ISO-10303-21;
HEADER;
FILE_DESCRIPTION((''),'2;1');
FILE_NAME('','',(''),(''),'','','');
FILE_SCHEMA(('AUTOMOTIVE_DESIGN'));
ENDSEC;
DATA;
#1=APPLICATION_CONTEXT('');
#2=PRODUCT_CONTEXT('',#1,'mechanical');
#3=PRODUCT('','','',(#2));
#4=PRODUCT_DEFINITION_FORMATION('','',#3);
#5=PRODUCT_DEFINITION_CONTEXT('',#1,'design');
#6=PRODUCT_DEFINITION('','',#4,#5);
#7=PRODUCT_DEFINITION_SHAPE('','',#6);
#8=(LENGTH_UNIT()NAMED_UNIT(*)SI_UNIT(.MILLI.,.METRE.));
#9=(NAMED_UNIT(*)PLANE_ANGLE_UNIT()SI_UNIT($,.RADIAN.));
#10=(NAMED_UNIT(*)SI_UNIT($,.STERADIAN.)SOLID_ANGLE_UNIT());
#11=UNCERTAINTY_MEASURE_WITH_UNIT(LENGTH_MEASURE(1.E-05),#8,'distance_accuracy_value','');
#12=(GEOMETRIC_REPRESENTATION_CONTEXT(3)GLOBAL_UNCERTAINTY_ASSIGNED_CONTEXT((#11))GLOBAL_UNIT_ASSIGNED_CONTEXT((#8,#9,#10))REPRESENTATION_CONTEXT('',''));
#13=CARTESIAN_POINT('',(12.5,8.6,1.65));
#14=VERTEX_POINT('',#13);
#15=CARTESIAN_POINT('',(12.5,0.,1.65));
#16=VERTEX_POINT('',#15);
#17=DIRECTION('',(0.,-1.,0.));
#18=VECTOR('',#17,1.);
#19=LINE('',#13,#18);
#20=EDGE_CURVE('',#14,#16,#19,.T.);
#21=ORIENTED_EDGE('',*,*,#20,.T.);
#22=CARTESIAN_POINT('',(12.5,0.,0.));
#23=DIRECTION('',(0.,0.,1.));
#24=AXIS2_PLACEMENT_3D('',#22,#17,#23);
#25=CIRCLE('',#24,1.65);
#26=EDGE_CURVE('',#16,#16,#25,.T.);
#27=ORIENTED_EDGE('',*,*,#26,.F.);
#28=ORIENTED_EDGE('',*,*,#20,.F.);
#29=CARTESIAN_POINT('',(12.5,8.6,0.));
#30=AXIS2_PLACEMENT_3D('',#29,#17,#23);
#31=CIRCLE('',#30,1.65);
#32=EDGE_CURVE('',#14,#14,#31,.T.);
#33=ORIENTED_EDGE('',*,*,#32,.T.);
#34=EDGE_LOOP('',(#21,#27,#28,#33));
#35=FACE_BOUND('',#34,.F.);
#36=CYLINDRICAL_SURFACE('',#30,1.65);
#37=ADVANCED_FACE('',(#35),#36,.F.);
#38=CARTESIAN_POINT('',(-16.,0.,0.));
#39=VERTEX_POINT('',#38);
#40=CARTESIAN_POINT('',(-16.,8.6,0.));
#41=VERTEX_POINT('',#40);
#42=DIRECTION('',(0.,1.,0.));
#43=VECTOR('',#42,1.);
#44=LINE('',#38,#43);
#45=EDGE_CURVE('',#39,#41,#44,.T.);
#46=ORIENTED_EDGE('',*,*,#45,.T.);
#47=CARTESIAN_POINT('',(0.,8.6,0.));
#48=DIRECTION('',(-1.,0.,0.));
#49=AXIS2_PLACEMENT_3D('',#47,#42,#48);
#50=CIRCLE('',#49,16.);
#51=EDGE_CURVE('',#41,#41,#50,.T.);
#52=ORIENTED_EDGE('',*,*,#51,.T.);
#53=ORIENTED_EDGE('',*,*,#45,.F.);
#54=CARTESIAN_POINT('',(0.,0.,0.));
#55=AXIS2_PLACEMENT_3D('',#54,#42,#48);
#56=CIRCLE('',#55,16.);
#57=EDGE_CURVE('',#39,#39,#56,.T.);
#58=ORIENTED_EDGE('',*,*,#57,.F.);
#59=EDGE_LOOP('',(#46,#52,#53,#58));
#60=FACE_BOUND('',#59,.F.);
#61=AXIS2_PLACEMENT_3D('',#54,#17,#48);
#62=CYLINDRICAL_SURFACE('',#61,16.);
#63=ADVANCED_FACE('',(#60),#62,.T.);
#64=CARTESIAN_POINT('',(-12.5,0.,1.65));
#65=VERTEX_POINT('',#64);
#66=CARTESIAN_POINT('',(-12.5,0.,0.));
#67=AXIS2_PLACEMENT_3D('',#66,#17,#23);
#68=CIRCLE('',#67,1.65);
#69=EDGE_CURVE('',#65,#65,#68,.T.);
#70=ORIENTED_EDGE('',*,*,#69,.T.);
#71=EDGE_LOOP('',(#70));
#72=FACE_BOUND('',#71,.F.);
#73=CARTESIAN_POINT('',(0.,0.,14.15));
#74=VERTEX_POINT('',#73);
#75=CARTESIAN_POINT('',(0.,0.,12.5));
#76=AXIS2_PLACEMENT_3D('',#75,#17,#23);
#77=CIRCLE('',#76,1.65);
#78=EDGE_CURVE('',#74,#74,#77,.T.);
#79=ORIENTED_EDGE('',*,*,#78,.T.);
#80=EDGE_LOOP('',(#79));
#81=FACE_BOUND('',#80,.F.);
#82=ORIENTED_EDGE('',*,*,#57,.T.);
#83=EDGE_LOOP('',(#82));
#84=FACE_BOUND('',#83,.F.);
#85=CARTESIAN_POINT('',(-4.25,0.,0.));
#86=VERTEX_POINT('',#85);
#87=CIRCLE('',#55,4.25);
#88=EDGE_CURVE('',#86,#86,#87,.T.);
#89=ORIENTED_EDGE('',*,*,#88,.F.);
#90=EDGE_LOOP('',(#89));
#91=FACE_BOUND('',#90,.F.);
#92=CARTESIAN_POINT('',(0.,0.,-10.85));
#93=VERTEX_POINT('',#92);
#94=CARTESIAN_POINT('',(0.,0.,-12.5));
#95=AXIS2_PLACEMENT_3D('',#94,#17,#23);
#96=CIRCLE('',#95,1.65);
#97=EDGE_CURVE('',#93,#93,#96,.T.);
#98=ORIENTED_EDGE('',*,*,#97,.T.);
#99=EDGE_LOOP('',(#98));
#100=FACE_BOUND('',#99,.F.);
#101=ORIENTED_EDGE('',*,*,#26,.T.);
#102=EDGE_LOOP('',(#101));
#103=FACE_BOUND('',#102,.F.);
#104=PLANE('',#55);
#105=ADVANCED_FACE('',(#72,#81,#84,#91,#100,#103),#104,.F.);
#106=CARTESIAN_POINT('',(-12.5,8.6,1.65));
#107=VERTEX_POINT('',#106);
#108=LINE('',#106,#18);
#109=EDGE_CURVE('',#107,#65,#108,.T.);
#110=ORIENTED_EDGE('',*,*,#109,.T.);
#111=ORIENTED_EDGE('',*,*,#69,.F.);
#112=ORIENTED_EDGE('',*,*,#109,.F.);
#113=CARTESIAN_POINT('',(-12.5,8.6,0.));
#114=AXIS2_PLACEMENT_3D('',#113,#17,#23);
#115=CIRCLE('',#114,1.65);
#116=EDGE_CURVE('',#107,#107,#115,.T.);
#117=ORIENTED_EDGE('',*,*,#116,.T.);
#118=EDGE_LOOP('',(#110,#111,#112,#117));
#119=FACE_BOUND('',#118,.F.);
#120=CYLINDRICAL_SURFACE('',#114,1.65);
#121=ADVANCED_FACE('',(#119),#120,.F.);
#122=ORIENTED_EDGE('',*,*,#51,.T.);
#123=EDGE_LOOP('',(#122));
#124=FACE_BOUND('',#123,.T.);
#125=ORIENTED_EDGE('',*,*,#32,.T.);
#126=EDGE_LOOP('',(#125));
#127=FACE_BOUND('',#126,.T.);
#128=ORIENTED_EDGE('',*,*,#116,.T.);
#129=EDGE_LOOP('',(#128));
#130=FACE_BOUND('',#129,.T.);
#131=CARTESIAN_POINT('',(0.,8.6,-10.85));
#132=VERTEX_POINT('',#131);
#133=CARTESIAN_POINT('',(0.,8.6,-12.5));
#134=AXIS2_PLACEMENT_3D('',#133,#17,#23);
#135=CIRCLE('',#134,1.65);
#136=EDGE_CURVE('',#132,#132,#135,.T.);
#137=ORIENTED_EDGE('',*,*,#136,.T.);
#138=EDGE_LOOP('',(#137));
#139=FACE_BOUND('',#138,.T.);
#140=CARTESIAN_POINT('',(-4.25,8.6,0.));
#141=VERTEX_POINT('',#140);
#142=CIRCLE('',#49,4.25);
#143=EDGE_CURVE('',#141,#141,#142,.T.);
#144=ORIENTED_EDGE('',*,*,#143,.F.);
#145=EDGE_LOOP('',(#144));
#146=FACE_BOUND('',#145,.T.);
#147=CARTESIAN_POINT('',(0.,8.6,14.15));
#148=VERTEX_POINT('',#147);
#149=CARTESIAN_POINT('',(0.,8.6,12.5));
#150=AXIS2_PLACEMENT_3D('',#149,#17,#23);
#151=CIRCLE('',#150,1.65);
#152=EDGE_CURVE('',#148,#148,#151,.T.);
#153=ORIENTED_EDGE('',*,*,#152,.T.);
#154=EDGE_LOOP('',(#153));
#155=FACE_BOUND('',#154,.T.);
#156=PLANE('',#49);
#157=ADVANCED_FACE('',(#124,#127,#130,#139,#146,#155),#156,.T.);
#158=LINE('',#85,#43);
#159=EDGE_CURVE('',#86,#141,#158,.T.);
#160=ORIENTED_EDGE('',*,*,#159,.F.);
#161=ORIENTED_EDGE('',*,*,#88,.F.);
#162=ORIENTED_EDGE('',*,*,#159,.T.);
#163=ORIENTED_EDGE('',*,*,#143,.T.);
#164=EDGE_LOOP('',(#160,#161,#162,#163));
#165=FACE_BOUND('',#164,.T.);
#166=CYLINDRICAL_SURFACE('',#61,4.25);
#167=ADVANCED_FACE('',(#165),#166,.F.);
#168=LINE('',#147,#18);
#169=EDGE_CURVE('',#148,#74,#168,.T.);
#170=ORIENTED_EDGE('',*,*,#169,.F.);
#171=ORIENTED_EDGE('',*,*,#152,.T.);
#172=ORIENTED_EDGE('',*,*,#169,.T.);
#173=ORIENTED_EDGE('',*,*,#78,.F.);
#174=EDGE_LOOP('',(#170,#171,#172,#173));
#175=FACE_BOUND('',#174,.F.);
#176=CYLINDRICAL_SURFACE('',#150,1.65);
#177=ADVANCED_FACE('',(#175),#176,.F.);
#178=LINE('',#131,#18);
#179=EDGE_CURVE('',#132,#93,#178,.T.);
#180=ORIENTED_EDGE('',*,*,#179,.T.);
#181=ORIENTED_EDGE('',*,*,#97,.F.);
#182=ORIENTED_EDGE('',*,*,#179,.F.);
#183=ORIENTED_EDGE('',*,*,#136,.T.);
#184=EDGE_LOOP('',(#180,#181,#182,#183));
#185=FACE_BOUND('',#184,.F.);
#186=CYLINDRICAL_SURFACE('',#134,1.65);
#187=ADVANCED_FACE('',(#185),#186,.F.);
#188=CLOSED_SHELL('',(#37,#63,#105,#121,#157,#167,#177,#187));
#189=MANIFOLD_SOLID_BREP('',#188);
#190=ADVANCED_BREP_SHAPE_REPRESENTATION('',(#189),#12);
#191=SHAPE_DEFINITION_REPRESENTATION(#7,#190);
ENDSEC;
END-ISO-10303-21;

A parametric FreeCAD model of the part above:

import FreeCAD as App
import Part
import Sketcher
from FreeCAD import Vector
Q = App.Units.Quantity

doc = App.newDocument("Part")
body = doc.addObject("PartDesign::Body", "Body")

sketch1 = body.newObject("Sketcher::SketchObject", "Sketch")
sketch1.AttachmentSupport = (doc.getObject("XZ_Plane"), [""])
sketch1.MapMode = "FlatFace"
sketch1.addGeometry([
    Part.Circle(Vector(0, 0, 0), Vector(0, 0, 1), 16),
    Part.Circle(Vector(0, 0, 0), Vector(0, 0, 1), 4.2),
], False)
sketch1.addConstraint([
    Sketcher.Constraint("Coincident", 0, 3, -1, 1),
    Sketcher.Constraint("Coincident", 1, 3, -1, 1),
    Sketcher.Constraint("Diameter", 0, Q("32 mm")),
    Sketcher.Constraint("Diameter", 1, Q("8.5 mm")),
])
pad1 = body.newObject("PartDesign::Pad", "Pad")
pad1.Profile = sketch1
pad1.Length = 8.6
pad1.Reversed = True

sketch2 = body.newObject("Sketcher::SketchObject", "Sketch001")
sketch2.AttachmentSupport = (doc.getObject("XZ_Plane"), [""])
sketch2.MapMode = "FlatFace"
sketch2.AttachmentOffset = App.Placement(Vector(0, 0, -8.6), App.Rotation())
sketch2.addGeometry([
    Part.Circle(Vector(-12.5, 0, 0), Vector(0, 0, 1), 1.6),
    Part.Circle(Vector(0, 12.5, 0), Vector(0, 0, 1), 1.6),
    Part.Circle(Vector(12.5, 0, 0), Vector(0, 0, 1), 1.6),
    Part.Circle(Vector(0, -12.5, 0), Vector(0, 0, 1), 1.6),
], False)
sketch2.addConstraint([
    Sketcher.Constraint("Equal", 0, 1),
    Sketcher.Constraint("Equal", 1, 2),
    Sketcher.Constraint("Equal", 2, 3),
    Sketcher.Constraint("Symmetric", 0, 3, 2, 3, -1, 1),
    Sketcher.Constraint("Symmetric", 1, 3, 3, 3, -1, 1),
    Sketcher.Constraint("PointOnObject", 0, 3, -1),
    Sketcher.Constraint("PointOnObject", 1, 3, -2),
    Sketcher.Constraint("Diameter", 0, Q("3.3 mm")),
    Sketcher.Constraint("DistanceX", 0, 3, 2, 3, Q("25 mm")),
    Sketcher.Constraint("DistanceY", 3, 3, 1, 3, Q("25 mm")),
])
doc.recompute()
hole = body.newObject("PartDesign::Hole", "Hole")
hole.Profile = sketch2
hole.ThreadType = "None"
hole.Diameter = 3.3
hole.DepthType = "ThroughAll"
hole.Reversed = True

doc.recompute()
